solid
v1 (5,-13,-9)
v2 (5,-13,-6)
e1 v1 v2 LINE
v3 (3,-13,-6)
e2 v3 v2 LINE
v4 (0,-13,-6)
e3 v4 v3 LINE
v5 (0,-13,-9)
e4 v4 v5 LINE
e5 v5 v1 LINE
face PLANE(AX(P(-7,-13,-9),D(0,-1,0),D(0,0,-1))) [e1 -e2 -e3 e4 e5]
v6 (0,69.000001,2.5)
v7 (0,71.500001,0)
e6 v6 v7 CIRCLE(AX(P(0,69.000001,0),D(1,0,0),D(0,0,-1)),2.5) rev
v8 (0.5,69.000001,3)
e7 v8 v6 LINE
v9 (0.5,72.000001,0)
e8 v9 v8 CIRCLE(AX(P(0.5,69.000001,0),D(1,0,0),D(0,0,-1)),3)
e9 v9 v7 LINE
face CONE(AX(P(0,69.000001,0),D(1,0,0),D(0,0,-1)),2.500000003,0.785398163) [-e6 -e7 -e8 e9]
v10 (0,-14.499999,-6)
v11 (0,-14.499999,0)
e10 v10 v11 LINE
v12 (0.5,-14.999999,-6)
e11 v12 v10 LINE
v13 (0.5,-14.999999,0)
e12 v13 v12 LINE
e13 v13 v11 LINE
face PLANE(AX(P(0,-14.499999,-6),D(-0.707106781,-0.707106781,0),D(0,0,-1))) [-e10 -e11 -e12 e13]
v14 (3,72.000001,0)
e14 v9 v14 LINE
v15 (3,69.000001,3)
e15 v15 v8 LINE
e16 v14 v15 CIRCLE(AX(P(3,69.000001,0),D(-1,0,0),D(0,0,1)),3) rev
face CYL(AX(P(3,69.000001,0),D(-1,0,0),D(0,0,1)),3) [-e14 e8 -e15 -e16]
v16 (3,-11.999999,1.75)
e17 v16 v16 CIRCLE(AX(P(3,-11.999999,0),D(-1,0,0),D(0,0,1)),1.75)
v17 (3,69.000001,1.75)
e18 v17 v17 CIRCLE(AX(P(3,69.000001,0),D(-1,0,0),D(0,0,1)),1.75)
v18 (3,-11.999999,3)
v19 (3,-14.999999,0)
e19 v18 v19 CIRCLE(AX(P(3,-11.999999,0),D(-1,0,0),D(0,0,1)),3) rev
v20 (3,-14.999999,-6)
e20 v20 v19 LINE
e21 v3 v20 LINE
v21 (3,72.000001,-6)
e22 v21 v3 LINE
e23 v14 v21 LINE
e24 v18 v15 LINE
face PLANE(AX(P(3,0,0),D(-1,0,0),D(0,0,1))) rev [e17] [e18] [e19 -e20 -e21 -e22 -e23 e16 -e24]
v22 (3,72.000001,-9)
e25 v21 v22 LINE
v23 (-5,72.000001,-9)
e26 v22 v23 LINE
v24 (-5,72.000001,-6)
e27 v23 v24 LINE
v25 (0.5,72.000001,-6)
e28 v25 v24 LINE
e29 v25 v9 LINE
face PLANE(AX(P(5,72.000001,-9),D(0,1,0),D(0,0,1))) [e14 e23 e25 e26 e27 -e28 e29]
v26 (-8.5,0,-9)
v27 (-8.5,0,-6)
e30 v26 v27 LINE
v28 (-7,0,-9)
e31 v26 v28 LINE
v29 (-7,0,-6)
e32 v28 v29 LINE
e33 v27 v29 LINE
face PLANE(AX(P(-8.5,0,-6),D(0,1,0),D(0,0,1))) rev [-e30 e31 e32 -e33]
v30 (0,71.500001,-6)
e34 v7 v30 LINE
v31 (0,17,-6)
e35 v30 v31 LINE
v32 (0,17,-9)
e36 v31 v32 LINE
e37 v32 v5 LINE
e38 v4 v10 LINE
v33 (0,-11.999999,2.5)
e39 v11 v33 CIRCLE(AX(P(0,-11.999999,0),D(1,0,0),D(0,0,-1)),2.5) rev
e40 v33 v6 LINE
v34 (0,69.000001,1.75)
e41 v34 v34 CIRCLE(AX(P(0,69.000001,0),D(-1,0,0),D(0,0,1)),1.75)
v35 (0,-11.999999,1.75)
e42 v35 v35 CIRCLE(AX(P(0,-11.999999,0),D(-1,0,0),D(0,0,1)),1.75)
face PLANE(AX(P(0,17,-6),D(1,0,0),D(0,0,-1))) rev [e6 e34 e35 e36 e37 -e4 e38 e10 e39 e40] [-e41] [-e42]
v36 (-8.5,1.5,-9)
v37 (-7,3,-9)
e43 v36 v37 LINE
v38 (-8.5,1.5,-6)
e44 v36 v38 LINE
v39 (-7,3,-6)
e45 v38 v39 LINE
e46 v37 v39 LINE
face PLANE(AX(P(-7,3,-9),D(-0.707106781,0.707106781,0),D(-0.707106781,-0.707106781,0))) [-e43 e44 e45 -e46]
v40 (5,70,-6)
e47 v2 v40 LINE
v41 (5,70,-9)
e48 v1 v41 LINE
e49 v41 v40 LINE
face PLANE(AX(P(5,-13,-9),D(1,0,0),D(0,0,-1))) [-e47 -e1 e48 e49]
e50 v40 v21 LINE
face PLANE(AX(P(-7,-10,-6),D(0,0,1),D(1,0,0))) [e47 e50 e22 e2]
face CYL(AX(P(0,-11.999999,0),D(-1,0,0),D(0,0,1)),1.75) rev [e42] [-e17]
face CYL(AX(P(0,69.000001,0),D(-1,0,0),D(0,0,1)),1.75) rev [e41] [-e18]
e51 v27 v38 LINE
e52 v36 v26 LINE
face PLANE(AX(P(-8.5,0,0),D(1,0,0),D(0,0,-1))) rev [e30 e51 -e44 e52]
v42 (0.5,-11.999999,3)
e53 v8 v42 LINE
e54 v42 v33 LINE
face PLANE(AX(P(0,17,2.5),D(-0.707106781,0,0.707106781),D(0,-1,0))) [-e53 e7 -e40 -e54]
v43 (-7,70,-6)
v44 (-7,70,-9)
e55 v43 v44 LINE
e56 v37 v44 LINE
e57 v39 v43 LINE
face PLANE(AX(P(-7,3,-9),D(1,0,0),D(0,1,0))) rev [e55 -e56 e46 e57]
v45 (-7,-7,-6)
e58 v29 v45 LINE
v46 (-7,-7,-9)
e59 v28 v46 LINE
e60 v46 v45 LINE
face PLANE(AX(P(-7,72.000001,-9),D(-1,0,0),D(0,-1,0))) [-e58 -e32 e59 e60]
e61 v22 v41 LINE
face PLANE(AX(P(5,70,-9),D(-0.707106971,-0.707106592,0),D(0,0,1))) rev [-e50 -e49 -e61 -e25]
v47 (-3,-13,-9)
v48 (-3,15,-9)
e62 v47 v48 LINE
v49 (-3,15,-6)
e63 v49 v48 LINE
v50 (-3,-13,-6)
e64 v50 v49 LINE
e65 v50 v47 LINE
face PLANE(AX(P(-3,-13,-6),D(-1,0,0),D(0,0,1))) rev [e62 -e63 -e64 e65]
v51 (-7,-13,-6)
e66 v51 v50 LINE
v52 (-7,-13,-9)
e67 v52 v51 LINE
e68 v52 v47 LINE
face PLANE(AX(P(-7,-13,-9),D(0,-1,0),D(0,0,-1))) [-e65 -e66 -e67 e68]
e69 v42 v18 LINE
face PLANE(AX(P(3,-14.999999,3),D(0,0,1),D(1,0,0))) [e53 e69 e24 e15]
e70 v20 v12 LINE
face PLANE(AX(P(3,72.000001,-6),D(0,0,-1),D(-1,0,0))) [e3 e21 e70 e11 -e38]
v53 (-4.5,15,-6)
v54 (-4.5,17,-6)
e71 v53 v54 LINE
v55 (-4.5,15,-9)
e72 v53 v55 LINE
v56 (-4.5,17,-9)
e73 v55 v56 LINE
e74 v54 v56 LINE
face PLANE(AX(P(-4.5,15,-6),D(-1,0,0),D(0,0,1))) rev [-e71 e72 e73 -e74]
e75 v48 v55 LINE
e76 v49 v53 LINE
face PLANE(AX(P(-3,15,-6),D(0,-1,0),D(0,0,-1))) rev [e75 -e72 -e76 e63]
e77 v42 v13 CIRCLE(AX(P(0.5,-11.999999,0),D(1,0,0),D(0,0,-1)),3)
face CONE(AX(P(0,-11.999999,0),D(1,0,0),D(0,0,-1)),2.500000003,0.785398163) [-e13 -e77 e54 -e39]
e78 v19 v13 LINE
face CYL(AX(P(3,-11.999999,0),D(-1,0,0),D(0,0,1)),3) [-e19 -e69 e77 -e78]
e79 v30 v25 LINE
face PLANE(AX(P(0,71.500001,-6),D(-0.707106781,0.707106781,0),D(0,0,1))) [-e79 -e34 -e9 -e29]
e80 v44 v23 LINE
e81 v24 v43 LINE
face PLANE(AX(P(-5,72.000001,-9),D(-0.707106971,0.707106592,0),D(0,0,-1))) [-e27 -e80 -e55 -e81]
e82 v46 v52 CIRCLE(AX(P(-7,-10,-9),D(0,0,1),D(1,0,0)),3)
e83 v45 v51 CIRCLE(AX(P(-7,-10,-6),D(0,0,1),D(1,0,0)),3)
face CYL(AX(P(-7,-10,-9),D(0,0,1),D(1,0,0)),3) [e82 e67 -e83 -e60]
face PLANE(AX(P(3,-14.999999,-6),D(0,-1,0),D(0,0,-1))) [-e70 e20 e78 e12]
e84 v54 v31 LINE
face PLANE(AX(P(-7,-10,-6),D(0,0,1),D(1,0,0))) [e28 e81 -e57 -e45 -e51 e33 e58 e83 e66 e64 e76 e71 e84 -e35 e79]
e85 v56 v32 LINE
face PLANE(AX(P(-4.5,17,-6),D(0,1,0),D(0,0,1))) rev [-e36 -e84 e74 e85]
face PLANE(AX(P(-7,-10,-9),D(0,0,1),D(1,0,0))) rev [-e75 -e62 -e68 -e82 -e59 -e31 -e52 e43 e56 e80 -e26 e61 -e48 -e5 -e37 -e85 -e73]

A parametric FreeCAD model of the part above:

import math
import FreeCAD as App
import Part
import Sketcher


def edges_at(feature, points):
    """Names of the edges that pass closest to the given points."""
    edges = feature.Shape.Edges
    near = lambda p: min(range(len(edges)), key=lambda i: edges[i].distToShape(Part.Vertex(*p))[0])
    return sorted({f"Edge{near(p) + 1}" for p in points})


def faces_at(feature, points):
    """Names of the faces that lie closest to the given points."""
    faces = feature.Shape.Faces
    near = lambda p: min(range(len(faces)), key=lambda i: faces[i].distToShape(Part.Vertex(*p))[0])
    return sorted({f"Face{near(p) + 1}" for p in points})


def add_polygon(sketch, points):
    """Adds a closed chain of lines whose ends are joined by coincident constraints."""
    first, n = sketch.GeometryCount, len(points)
    for a, b in zip(points, points[1:] + points[:1]):
        sketch.addGeometry(Part.LineSegment(App.Vector(*a, 0), App.Vector(*b, 0)), False)
    for i in range(n):
        sketch.addConstraint(Sketcher.Constraint("Coincident", first + i, 2, first + (i + 1) % n, 1))

doc = App.newDocument("Part")
body = doc.addObject("PartDesign::Body", "Body")

# Sketch on XY plane
sketch1 = doc.addObject("Sketcher::SketchObject", "Sketch")
body.addObject(sketch1)
sketch1.AttachmentSupport = (doc.XY_Plane, [""])
sketch1.MapMode = "FlatFace"
sketch1.AttachmentOffset = App.Placement(App.Vector(0, 0, -6), App.Rotation())
sketch1.addGeometry([
    Part.LineSegment(App.Vector(5, 72, 0), App.Vector(-7, 72, 0)),  # 0
    Part.LineSegment(App.Vector(-7, 72, 0), App.Vector(-7, -7, 0)),  # 1
    Part.ArcOfCircle(Part.Circle(App.Vector(-7, -10, 0), App.Vector(0, 0, 1), 3), math.radians(90), math.radians(270)),  # 2
    Part.LineSegment(App.Vector(-7, -13, 0), App.Vector(5, -13, 0)),  # 3
    Part.LineSegment(App.Vector(5, -13, 0), App.Vector(5, 72, 0)),  # 4
], False)
sketch1.addConstraint([
    Sketcher.Constraint("Coincident", 0, 2, 1, 1),
    Sketcher.Constraint("Coincident", 1, 2, 2, 1),
    Sketcher.Constraint("Tangent", 2, 2, 3, 1),
    Sketcher.Constraint("Coincident", 3, 2, 4, 1),
    Sketcher.Constraint("Coincident", 4, 2, 0, 1),
    Sketcher.Constraint("Horizontal", 0),
    Sketcher.Constraint("Vertical", 1),
    Sketcher.Constraint("Horizontal", 3),
    Sketcher.Constraint("Vertical", 4),
    Sketcher.Constraint("Vertical", 2, 3, 0, 2),
    Sketcher.Constraint("Radius", 2, 3.0),
    Sketcher.Constraint("DistanceX", 0, 2, 0, 1, 12.0),
    Sketcher.Constraint("DistanceY", 1, 2, 1, 1, 79.000001),
    Sketcher.Constraint("DistanceX", 2, 3, -1, 1, 7.0),
    Sketcher.Constraint("DistanceY", 2, 3, -1, 1, 10.0),
])
pad1 = doc.addObject("PartDesign::Pad", "Pad")
body.addObject(pad1)
pad1.Profile = sketch1
pad1.Length = 3
pad1.Reversed = True

# Sketch on YZ plane
sketch2 = doc.addObject("Sketcher::SketchObject", "Sketch001")
body.addObject(sketch2)
sketch2.AttachmentSupport = (doc.YZ_Plane, [""])
sketch2.MapMode = "FlatFace"
sketch2.AttachmentOffset = App.Placement(App.Vector(0, 0, -7), App.Rotation())
add_polygon(sketch2, [(72, -9), (0, -9), (0, -6), (72, -6)])  # lines 0-3
sketch2.addConstraint([
    Sketcher.Constraint("Horizontal", 0),
    Sketcher.Constraint("Vertical", 1),
    Sketcher.Constraint("Horizontal", 2),
    Sketcher.Constraint("Vertical", 3),
    Sketcher.Constraint("PointOnObject", 0, 2, -2),
    Sketcher.Constraint("DistanceX", 0, 2, 0, 1, 72.000001),
    Sketcher.Constraint("DistanceY", 1, 1, 1, 2, 3.0),
    Sketcher.Constraint("DistanceY", 0, 2, -1, 1, 9.0),
])
pad2 = doc.addObject("PartDesign::Pad", "Pad001")
body.addObject(pad2)
pad2.Profile = sketch2
pad2.Length = 1.5
pad2.Reversed = True

# Sketch on XY plane
sketch3 = doc.addObject("Sketcher::SketchObject", "Sketch002")
body.addObject(sketch3)
sketch3.AttachmentSupport = (doc.XY_Plane, [""])
sketch3.MapMode = "FlatFace"
sketch3.AttachmentOffset = App.Placement(App.Vector(0, 0, -9), App.Rotation())
add_polygon(sketch3, [(-3, -13), (-3, 15), (-4.5, 15), (-4.5, 17), (0, 17), (0, -13)])  # lines 0-5
sketch3.addConstraint([
    Sketcher.Constraint("Vertical", 0),
    Sketcher.Constraint("Horizontal", 1),
    Sketcher.Constraint("Vertical", 2),
    Sketcher.Constraint("Horizontal", 3),
    Sketcher.Constraint("Vertical", 4),
    Sketcher.Constraint("Horizontal", 5),
    Sketcher.Constraint("PointOnObject", 3, 2, -2),
    Sketcher.Constraint("DistanceX", 5, 2, 5, 1, 3.0),
    Sketcher.Constraint("DistanceY", 0, 1, 0, 2, 28.0),
    Sketcher.Constraint("DistanceY", 2, 1, 2, 2, 2.0),
    Sketcher.Constraint("DistanceX", 1, 2, 1, 1, 1.5),
    Sketcher.Constraint("DistanceY", -1, 1, 0, 2, 15.0),
])
pocket1 = doc.addObject("PartDesign::Pocket", "Pocket")
body.addObject(pocket1)
pocket1.Profile = sketch3
pocket1.Type = "ThroughAll"
pocket1.Reversed = True

# Sketch on XY plane
sketch4 = doc.addObject("Sketcher::SketchObject", "Sketch003")
body.addObject(sketch4)
sketch4.AttachmentSupport = (doc.XY_Plane, [""])
sketch4.MapMode = "FlatFace"
sketch4.AttachmentOffset = App.Placement(App.Vector(0, 0, -6), App.Rotation())
add_polygon(sketch4, [(-8.5, 72), (-8.5, 3), (-7, 3), (-7, 72)])  # lines 0-3
sketch4.addConstraint([
    Sketcher.Constraint("Vertical", 0),
    Sketcher.Constraint("Horizontal", 1),
    Sketcher.Constraint("Vertical", 2),
    Sketcher.Constraint("Horizontal", 3),
    Sketcher.Constraint("DistanceY", 0, 2, 0, 1, 69.000001),
    Sketcher.Constraint("DistanceX", 1, 1, 1, 2, 1.5),
    Sketcher.Constraint("DistanceY", -1, 1, 0, 2, 3.0),
    Sketcher.Constraint("DistanceX", 1, 2, -1, 1, 7.0),
])
pocket2 = doc.addObject("PartDesign::Pocket", "Pocket001")
body.addObject(pocket2)
pocket2.Profile = sketch4
pocket2.Type = "ThroughAll"

# Sketch on YZ plane
sketch5 = doc.addObject("Sketcher::SketchObject", "Sketch004")
body.addObject(sketch5)
sketch5.AttachmentSupport = (doc.YZ_Plane, [""])
sketch5.MapMode = "FlatFace"
add_polygon(sketch5, [(72, 3), (72, -6), (-15, -6), (-15, 3)])  # lines 0-3
sketch5.addConstraint([
    Sketcher.Constraint("Vertical", 0),
    Sketcher.Constraint("Horizontal", 1),
    Sketcher.Constraint("Vertical", 2),
    Sketcher.Constraint("Horizontal", 3),
    Sketcher.Constraint("DistanceX", 1, 2, 1, 1, 87.0),
    Sketcher.Constraint("DistanceY", 0, 2, 0, 1, 9.0),
    Sketcher.Constraint("DistanceX", -1, 1, 0, 2, 72.000001),
    Sketcher.Constraint("DistanceY", 0, 2, -1, 1, 6.0),
])
pad3 = doc.addObject("PartDesign::Pad", "Pad002")
body.addObject(pad3)
pad3.Profile = sketch5
pad3.Length = 3
doc.recompute()

datumplane = doc.addObject("PartDesign::Plane", "DatumPlane")
body.addObject(datumplane)
datumplane.AttachmentSupport = (doc.YZ_Plane, [""])
datumplane.MapMode = "FlatFace"
datumplane.AttachmentOffset = App.Placement(App.Vector(0, 0, -7), App.Rotation())
draft = doc.addObject("PartDesign::Draft", "Draft")
body.addObject(draft)
draft.Base = (pad3, faces_at(pad3, [(-7.75, 3, -7.5)]))
draft.NeutralPlane = (datumplane, [""])
draft.Angle = 45
draft.Reversed = True

# Sketch on YZ plane
sketch6 = doc.addObject("Sketcher::SketchObject", "Sketch005")
body.addObject(sketch6)
sketch6.AttachmentSupport = (doc.YZ_Plane, [""])
sketch6.MapMode = "FlatFace"
sketch6.addGeometry([
    Part.Circle(App.Vector(69, 0, 0), App.Vector(0, 0, 1), 1.8),
    Part.Circle(App.Vector(-12, 0, 0), App.Vector(0, 0, 1), 1.8),
], False)
sketch6.addConstraint([
    Sketcher.Constraint("Equal", 0, 1),
    Sketcher.Constraint("PointOnObject", 0, 3, -1),
    Sketcher.Constraint("PointOnObject", 1, 3, -1),
    Sketcher.Constraint("Diameter", 0, 3.5),
    Sketcher.Constraint("DistanceX", -1, 1, 0, 3, 69.000001),
    Sketcher.Constraint("DistanceX", 1, 3, -1, 1, 11.999999),
])
doc.recompute()
hole = doc.addObject("PartDesign::Hole", "Hole")
body.addObject(hole)
hole.Profile = sketch6
hole.ThreadType = "None"
hole.Diameter = 3.5
hole.DepthType = "Dimension"
hole.Depth = 5
hole.DrillPoint = "Flat"
hole.Reversed = True
doc.recompute()

fillet = doc.addObject("PartDesign::Fillet", "Fillet")
body.addObject(fillet)
fillet.Base = (hole, edges_at(hole, [(1.5, 72, 3), (1.5, -15, 3)]))
fillet.Radius = 3
doc.recompute()

chamfer = doc.addObject("PartDesign::Chamfer", "Chamfer")
body.addObject(chamfer)
chamfer.Base = (fillet, edges_at(fillet, [(-7, 72, -7.5)]))
chamfer.ChamferType = "Two distances"
chamfer.Size = 2.000001
chamfer.Size2 = 2
doc.recompute()

chamfer2 = doc.addObject("PartDesign::Chamfer", "Chamfer001")
body.addObject(chamfer2)
chamfer2.Base = (chamfer, edges_at(chamfer, [(5, 72, -7.5)]))
chamfer2.ChamferType = "Two distances"
chamfer2.Size = 2
chamfer2.Size2 = 2.000001
doc.recompute()

chamfer3 = doc.addObject("PartDesign::Chamfer", "Chamfer002")
body.addObject(chamfer3)
chamfer3.Base = (chamfer2, edges_at(chamfer2, [
    (0, -15, -3),
    (0, 28.5, 3),
    (0, 72, -3),
    (0, -14.121, 2.121),
    (0, 71.121, 2.121),
]))
chamfer3.Size = 0.5

doc.recompute()
